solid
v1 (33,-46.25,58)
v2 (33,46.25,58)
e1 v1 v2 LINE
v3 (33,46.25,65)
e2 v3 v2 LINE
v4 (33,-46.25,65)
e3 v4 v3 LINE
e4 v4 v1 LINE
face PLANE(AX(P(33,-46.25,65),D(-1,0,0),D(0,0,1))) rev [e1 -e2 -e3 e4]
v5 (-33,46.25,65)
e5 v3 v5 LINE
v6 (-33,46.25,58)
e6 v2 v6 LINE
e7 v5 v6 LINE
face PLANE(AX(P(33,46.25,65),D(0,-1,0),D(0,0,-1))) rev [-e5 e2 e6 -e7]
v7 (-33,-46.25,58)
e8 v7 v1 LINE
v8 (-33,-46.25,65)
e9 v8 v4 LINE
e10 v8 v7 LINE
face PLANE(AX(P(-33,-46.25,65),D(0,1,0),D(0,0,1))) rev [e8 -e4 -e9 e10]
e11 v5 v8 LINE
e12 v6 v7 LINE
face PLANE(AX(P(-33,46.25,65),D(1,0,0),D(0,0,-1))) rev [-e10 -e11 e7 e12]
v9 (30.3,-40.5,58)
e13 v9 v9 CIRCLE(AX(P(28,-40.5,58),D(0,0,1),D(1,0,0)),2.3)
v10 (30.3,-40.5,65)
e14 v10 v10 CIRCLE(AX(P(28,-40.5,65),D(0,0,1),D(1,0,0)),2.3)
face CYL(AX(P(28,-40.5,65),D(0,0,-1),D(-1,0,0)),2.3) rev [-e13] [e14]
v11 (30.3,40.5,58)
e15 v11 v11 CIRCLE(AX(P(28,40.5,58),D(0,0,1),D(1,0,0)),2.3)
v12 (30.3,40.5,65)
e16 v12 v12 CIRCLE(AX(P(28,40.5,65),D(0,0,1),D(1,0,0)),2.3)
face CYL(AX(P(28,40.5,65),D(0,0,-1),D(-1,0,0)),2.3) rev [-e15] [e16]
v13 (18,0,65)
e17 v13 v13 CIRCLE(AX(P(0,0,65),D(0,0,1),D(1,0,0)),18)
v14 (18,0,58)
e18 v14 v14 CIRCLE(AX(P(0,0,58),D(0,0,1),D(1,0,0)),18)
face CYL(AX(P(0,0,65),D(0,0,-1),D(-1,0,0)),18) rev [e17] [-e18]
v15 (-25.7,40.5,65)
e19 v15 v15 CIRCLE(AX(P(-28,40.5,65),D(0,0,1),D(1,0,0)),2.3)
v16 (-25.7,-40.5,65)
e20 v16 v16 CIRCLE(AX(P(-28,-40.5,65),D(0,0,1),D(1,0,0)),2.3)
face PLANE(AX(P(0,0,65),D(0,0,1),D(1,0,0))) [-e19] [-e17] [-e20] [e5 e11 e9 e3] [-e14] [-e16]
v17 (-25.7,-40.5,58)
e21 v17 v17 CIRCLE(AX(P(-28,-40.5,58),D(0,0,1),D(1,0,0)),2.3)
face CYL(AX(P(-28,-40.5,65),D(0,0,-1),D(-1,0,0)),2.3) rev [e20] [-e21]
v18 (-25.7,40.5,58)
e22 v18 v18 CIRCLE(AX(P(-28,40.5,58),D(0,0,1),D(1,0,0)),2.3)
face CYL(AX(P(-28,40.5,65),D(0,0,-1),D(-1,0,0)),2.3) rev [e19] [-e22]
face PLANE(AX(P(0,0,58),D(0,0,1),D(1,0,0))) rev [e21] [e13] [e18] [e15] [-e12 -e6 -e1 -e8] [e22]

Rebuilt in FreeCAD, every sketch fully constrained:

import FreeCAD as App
import Part
import Sketcher

V = App.Vector

doc = App.newDocument("Part")
body = doc.addObject("PartDesign::Body", "Body")

# Sketch on XY plane
sketch1 = body.newObject("Sketcher::SketchObject", "Sketch")
sketch1.AttachmentSupport = (doc.getObject("XY_Plane"), [""])
sketch1.MapMode = "FlatFace"
sketch1.AttachmentOffset = App.Placement(V(0, 0, 58), App.Rotation())
sketch1.addGeometry([
    Part.LineSegment(V(-33, 46.2, 0), V(-33, -46.2, 0)),  # 0
    Part.LineSegment(V(-33, -46.2, 0), V(33, -46.2, 0)),  # 1
    Part.LineSegment(V(33, -46.2, 0), V(33, 46.2, 0)),  # 2
    Part.LineSegment(V(33, 46.2, 0), V(-33, 46.2, 0)),  # 3
    Part.Circle(V(-28, -40.5, 0), V(0, 0, 1), 2.3),  # 4
    Part.Circle(V(28, -40.5, 0), V(0, 0, 1), 2.3),  # 5
    Part.Circle(V(0, 0, 0), V(0, 0, 1), 18),  # 6
    Part.Circle(V(-28, 40.5, 0), V(0, 0, 1), 2.3),  # 7
    Part.Circle(V(28, 40.5, 0), V(0, 0, 1), 2.3),  # 8
], False)
sketch1.addConstraint([
    Sketcher.Constraint("Coincident", 0, 2, 1, 1),
    Sketcher.Constraint("Coincident", 1, 2, 2, 1),
    Sketcher.Constraint("Coincident", 2, 2, 3, 1),
    Sketcher.Constraint("Coincident", 3, 2, 0, 1),
    Sketcher.Constraint("Vertical", 0),
    Sketcher.Constraint("Horizontal", 1),
    Sketcher.Constraint("Vertical", 2),
    Sketcher.Constraint("Horizontal", 3),
    Sketcher.Constraint("Coincident", 6, 3, -1, 1),
    Sketcher.Constraint("Equal", 4, 5),
    Sketcher.Constraint("Equal", 5, 7),
    Sketcher.Constraint("Equal", 7, 8),
    Sketcher.Constraint("Symmetric", 5, 3, 7, 3, -1, 1),
    Sketcher.Constraint("Symmetric", 4, 3, 8, 3, -1, 1),
    Sketcher.Constraint("Symmetric", 0, 2, 2, 2, -1, 1),
    Sketcher.Constraint("Symmetric", 4, 3, 5, 3, -2),
    Sketcher.Constraint("Diameter", 6, 36.0),
    Sketcher.Constraint("Diameter", 4, 4.6),
    Sketcher.Constraint("DistanceX", 1, 1, 1, 2, 66.0),
    Sketcher.Constraint("DistanceY", 0, 2, 0, 1, 92.5),
    Sketcher.Constraint("DistanceX", 4, 3, -1, 1, 28.0),
    Sketcher.Constraint("DistanceY", 4, 3, 7, 3, 81.0),
])
pad1 = body.newObject("PartDesign::Pad", "Pad")
pad1.Profile = sketch1
pad1.Length = 7

doc.recompute()
